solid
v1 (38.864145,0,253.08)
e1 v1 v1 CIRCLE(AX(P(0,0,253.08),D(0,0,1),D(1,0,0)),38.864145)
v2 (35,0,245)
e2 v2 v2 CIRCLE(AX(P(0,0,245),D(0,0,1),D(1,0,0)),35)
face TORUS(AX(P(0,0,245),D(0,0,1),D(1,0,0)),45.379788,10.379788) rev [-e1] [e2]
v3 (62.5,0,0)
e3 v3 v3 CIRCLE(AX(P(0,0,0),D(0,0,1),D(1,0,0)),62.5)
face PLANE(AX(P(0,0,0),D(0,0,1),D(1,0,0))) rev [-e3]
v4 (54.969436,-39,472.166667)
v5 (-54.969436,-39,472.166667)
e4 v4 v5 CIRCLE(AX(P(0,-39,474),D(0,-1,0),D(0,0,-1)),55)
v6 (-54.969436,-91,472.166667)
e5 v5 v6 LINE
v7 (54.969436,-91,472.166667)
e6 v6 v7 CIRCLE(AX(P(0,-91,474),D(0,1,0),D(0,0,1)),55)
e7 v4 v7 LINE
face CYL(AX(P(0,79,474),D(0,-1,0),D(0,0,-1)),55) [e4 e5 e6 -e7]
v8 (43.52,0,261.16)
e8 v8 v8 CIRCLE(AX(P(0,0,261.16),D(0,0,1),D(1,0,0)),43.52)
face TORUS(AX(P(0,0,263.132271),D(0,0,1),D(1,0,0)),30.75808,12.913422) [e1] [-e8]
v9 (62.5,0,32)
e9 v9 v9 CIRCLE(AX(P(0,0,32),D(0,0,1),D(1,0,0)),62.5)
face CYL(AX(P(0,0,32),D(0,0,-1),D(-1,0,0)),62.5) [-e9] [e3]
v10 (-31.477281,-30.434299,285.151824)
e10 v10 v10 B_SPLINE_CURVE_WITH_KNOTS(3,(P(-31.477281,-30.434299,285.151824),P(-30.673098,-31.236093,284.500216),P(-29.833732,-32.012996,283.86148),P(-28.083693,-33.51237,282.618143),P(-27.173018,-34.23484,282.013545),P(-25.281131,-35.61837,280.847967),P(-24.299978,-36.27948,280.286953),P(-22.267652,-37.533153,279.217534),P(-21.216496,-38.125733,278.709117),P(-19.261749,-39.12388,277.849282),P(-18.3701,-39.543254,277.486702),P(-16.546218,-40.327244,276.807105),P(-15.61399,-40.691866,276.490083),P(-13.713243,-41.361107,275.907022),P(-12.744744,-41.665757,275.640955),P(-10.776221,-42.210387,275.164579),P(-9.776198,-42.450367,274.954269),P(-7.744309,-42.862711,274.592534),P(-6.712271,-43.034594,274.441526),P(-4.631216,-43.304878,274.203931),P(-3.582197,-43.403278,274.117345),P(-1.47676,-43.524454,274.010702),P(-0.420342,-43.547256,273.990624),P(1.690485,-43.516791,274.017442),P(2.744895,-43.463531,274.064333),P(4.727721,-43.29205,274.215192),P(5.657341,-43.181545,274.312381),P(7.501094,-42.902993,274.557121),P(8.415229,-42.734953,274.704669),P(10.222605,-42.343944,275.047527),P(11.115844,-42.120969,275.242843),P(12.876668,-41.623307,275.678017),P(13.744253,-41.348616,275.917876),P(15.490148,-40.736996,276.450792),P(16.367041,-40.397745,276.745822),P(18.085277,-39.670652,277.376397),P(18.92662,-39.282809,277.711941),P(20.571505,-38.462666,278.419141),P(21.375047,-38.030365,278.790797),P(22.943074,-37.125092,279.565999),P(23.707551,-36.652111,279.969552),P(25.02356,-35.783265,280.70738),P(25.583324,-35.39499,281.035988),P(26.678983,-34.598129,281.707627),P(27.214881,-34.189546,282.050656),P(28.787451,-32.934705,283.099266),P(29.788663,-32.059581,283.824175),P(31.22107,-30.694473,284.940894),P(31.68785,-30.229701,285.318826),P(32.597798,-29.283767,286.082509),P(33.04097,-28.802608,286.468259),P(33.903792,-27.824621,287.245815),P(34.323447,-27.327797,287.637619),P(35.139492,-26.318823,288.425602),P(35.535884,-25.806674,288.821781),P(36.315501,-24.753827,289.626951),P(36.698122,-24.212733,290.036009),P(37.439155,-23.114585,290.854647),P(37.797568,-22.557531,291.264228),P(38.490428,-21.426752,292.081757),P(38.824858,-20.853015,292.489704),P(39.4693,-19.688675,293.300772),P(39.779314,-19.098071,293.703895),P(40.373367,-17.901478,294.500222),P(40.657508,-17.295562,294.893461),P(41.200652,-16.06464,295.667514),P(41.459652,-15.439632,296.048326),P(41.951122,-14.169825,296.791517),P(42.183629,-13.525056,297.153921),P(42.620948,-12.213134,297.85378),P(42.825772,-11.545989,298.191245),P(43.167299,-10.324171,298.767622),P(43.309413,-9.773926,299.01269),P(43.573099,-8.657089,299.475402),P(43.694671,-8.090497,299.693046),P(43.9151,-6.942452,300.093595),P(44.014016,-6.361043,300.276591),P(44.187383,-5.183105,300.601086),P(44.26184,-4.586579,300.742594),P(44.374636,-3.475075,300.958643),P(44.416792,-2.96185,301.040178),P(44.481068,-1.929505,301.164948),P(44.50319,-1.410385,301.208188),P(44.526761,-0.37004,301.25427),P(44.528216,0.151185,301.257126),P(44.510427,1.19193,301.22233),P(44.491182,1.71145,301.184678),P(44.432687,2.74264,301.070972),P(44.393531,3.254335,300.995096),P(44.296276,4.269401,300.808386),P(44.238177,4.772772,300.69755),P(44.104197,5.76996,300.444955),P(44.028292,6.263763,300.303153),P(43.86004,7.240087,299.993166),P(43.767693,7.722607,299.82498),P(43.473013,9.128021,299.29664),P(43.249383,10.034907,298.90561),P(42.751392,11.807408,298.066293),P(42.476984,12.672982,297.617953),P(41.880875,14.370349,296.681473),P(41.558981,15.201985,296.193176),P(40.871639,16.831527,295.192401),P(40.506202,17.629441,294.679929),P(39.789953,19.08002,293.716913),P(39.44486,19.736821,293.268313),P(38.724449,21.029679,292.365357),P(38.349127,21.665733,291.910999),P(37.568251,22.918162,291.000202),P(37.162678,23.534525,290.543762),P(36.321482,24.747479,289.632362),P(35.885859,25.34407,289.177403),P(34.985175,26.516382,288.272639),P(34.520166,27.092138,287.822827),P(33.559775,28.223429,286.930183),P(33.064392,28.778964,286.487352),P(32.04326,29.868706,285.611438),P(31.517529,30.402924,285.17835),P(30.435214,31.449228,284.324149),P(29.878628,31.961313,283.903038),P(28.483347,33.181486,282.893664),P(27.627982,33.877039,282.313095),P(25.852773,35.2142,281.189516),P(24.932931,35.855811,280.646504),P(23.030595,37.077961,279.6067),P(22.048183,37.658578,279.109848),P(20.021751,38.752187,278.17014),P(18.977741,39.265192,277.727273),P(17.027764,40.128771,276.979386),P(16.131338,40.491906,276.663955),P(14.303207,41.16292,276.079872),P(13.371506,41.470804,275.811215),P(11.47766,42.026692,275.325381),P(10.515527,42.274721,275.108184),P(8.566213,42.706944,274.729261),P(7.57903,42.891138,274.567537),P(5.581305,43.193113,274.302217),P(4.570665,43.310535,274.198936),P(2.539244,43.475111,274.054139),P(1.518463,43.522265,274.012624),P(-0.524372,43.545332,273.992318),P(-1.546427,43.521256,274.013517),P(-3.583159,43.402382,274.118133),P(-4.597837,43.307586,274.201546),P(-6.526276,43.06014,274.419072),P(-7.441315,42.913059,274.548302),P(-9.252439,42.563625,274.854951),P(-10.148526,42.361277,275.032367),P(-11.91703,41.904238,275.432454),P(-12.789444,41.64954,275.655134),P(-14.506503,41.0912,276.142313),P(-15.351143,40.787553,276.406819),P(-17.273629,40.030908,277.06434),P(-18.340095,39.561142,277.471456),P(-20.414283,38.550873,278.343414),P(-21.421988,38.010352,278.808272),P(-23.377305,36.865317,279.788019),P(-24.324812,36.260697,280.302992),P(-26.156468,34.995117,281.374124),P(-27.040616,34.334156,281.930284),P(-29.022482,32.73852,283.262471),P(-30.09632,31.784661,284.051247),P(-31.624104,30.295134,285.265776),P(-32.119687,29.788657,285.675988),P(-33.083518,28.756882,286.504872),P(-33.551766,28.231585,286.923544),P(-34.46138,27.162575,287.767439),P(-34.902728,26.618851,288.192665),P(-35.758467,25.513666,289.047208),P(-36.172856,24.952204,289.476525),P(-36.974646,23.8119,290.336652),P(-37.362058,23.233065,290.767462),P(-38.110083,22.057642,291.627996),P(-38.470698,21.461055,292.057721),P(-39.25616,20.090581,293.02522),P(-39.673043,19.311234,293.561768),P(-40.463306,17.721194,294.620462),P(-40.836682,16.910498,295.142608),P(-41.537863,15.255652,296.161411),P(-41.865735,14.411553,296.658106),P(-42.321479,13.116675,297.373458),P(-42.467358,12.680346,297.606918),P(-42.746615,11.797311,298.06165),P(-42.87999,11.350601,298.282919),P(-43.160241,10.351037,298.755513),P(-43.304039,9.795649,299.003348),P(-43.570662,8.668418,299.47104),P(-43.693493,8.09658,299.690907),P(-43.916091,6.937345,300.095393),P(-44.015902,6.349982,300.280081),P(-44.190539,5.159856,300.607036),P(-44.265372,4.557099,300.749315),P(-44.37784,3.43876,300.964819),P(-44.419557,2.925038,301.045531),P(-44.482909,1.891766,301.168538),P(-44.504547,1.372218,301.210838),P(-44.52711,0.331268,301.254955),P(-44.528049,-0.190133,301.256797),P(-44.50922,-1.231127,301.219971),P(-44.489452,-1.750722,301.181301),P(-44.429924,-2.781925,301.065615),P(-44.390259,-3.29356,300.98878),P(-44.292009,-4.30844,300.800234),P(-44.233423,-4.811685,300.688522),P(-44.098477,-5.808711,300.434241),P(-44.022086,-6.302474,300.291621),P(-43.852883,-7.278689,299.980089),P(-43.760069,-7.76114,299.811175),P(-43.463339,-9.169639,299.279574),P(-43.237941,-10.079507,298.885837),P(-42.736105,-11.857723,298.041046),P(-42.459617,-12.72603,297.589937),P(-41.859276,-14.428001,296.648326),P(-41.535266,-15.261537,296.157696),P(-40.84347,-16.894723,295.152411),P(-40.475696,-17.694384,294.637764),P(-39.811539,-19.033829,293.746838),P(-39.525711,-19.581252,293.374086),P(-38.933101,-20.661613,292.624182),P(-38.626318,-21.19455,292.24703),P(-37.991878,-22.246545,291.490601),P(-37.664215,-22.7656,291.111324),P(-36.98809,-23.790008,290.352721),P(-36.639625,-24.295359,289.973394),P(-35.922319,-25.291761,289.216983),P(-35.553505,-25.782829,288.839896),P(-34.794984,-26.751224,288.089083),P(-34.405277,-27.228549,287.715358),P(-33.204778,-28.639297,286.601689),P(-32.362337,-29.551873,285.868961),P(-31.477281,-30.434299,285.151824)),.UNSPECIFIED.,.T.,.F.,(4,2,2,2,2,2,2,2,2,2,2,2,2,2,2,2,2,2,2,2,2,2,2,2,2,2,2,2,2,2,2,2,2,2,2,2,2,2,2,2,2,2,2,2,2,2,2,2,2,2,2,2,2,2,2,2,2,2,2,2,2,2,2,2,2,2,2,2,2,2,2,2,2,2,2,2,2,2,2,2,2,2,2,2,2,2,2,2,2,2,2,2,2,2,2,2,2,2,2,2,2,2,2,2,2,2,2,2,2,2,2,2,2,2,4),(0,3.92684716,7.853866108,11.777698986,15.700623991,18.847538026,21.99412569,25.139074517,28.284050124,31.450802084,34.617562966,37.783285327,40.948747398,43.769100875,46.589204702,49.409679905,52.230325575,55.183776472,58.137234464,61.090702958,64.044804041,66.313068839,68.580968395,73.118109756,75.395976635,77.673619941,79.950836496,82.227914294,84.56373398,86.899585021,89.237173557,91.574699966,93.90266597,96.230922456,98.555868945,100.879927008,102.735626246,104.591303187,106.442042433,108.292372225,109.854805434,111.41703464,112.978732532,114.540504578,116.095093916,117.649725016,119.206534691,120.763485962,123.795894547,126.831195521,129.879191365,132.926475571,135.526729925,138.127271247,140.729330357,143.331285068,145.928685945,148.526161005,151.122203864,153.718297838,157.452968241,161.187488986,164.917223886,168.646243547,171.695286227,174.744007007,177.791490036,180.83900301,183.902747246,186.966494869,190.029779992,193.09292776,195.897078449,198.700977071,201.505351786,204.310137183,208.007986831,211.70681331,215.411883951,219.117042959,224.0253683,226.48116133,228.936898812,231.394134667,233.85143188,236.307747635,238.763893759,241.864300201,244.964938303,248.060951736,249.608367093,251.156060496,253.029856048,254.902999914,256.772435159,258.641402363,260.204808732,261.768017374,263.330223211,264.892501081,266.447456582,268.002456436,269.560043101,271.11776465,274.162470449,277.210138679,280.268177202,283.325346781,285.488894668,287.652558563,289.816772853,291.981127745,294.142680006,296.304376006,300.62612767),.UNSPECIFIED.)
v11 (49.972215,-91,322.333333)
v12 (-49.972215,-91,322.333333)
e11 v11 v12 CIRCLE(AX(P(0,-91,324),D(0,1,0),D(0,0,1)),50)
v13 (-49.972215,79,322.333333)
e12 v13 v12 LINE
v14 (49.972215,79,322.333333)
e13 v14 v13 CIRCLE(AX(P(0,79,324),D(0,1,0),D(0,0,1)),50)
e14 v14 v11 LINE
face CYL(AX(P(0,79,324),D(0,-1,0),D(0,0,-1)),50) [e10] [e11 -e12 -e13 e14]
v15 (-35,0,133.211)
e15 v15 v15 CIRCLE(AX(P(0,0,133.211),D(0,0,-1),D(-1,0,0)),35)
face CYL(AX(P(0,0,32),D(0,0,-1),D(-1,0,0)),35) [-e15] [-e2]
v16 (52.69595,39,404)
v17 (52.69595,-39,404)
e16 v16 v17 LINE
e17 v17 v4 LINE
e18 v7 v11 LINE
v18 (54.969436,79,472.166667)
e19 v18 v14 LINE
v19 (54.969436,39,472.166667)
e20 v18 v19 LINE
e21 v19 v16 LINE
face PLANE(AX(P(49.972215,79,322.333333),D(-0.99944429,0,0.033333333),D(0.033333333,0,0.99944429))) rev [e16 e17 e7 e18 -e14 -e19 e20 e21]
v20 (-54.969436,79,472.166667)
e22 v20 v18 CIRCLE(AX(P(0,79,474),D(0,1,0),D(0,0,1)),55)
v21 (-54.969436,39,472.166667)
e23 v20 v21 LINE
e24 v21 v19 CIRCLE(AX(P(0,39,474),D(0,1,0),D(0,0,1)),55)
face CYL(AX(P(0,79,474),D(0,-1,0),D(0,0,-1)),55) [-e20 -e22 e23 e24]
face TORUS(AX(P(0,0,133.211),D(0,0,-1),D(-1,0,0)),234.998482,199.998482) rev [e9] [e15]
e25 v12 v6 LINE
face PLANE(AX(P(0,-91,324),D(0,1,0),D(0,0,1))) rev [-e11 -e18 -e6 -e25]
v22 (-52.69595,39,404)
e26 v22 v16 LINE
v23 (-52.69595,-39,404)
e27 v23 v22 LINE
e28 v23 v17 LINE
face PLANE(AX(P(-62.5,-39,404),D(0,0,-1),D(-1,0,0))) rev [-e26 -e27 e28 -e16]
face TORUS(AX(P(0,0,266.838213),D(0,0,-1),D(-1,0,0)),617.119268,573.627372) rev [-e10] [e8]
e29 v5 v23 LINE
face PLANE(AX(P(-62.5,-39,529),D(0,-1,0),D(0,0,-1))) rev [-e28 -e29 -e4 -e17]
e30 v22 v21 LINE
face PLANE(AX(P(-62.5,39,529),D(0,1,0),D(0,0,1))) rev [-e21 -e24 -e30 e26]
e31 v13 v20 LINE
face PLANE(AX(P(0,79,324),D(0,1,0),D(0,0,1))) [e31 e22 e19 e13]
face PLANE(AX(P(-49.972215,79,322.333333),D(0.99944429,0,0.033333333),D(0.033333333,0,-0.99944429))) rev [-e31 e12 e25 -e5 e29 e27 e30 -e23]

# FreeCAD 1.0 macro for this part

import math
import FreeCAD as App
import Part
import Sketcher

V = App.Vector

doc = App.newDocument("Part")
params = doc.addObject("Spreadsheet::Sheet", "Params")
for row, (alias, value) in enumerate([
    ("sketch1_diameter", "125 mm"),
    ("pad1_length", "32 mm"),
    ("sketch2_width", "35 mm"),
    ("sketch2_height", "213 mm"),
    ("sketch2_width2", "62.5 mm"),
    ("revolution_angle", "360 deg"),
    ("sketch3_width", "35 mm"),
    ("sketch3_width2", "43.52 mm"),
    ("sketch3_height", "16.16 mm"),
    ("revolution2_angle", "360 deg"),
    ("sketch4_width", "43.52 mm"),
    ("sketch4_height", "61.18 mm"),
    ("revolution3_angle", "360 deg"),
    ("sketch5_radius", "55 mm"),
    ("sketch5_radius2", "50 mm"),
    ("pad2_length", "79 mm"),
    ("pad2_length2", "91 mm"),
    ("sketch6_width", "78 mm"),
    ("sketch6_height", "125 mm"),
], start=1):
    params.set(f"A{row}", alias)
    params.set(f"B{row}", "=" + value)
    params.setAlias(f"B{row}", alias)

body = doc.addObject("PartDesign::Body", "Body")

# Sketch on XY plane
sketch1 = doc.addObject("Sketcher::SketchObject", "Sketch")
body.addObject(sketch1)
sketch1.AttachmentSupport = (doc.XY_Plane, [""])
sketch1.MapMode = "FlatFace"
sketch1.addGeometry(Part.Circle(V(0, 0, 0), V(0, 0, 1), 62), False)
sketch1.addConstraint(Sketcher.Constraint("Coincident", 0, 3, -1, 1))
sketch1.addConstraint(Sketcher.Constraint("Diameter", 0, 125.0))
sketch1.setExpression("Constraints[1]", "Params.sketch1_diameter")
pad1 = doc.addObject("PartDesign::Pad", "Pad")
body.addObject(pad1)
pad1.Profile = sketch1
pad1.setExpression("Length", "Params.pad1_length")

# Sketch on XZ plane
sketch2 = doc.addObject("Sketcher::SketchObject", "Sketch001")
body.addObject(sketch2)
sketch2.AttachmentSupport = (doc.XZ_Plane, [""])
sketch2.MapMode = "FlatFace"
sketch2.addGeometry(Part.LineSegment(V(0, 32, 0), V(0, 245, 0)), False)
sketch2.addGeometry(Part.LineSegment(V(0, 245, 0), V(35, 245, 0)), False)
sketch2.addGeometry(Part.LineSegment(V(35, 245, 0), V(35, 133, 0)), False)
sketch2.addGeometry(Part.ArcOfCircle(Part.Circle(V(235, 133, 0), V(0, 0, 1), 200), math.radians(180), math.radians(210)), False)
sketch2.addGeometry(Part.LineSegment(V(62, 32, 0), V(0, 32, 0)), False)
sketch2.addConstraint(Sketcher.Constraint("Coincident", 0, 2, 1, 1))
sketch2.addConstraint(Sketcher.Constraint("Coincident", 1, 2, 2, 1))
sketch2.addConstraint(Sketcher.Constraint("Tangent", 2, 2, 3, 1))
sketch2.addConstraint(Sketcher.Constraint("Coincident", 3, 2, 4, 1))
sketch2.addConstraint(Sketcher.Constraint("Coincident", 4, 2, 0, 1))
sketch2.addConstraint(Sketcher.Constraint("Vertical", 0))
sketch2.addConstraint(Sketcher.Constraint("Horizontal", 1))
sketch2.addConstraint(Sketcher.Constraint("Vertical", 2))
sketch2.addConstraint(Sketcher.Constraint("Horizontal", 4))
sketch2.addConstraint(Sketcher.Constraint("PointOnObject", 0, 2, -2))
sketch2.addConstraint(Sketcher.Constraint("DistanceX", 1, 1, 1, 2, 35.0))
sketch2.addConstraint(Sketcher.Constraint("DistanceY", 0, 1, 0, 2, 213.0))
sketch2.addConstraint(Sketcher.Constraint("DistanceX", 4, 2, 4, 1, 62.5))
sketch2.addConstraint(Sketcher.Constraint("DistanceY", -1, 1, 0, 2, 245.0))
sketch2.addConstraint(Sketcher.Constraint("DistanceY", 2, 2, 2, 1, 111.789))
sketch2.setExpression("Constraints[10]", "Params.sketch2_width")
sketch2.setExpression("Constraints[11]", "Params.sketch2_height")
sketch2.setExpression("Constraints[12]", "Params.sketch2_width2")
revolution = doc.addObject("PartDesign::Revolution", "Revolution")
body.addObject(revolution)
revolution.Profile = sketch2
revolution.ReferenceAxis = (sketch2, ["V_Axis"])
revolution.setExpression("Angle", "Params.revolution_angle")

# Sketch on XZ plane
sketch3 = doc.addObject("Sketcher::SketchObject", "Sketch002")
body.addObject(sketch3)
sketch3.AttachmentSupport = (doc.XZ_Plane, [""])
sketch3.MapMode = "FlatFace"
sketch3.addGeometry(Part.LineSegment(V(35, 245, 0), V(0, 245, 0)), False)
sketch3.addGeometry(Part.LineSegment(V(0, 245, 0), V(0, 261, 0)), False)
sketch3.addGeometry(Part.LineSegment(V(0, 261, 0), V(44, 261, 0)), False)
sketch3.addGeometry(Part.ArcOfCircle(Part.Circle(V(31, 263, 0), V(0, 0, 1), 13), math.radians(-51), math.radians(-9)), False)
sketch3.addGeometry(Part.ArcOfCircle(Part.Circle(V(45, 245, 0), V(0, 0, 1), 10), math.radians(129), math.radians(180)), False)
sketch3.addConstraint(Sketcher.Constraint("Coincident", 0, 2, 1, 1))
sketch3.addConstraint(Sketcher.Constraint("Coincident", 1, 2, 2, 1))
sketch3.addConstraint(Sketcher.Constraint("Coincident", 2, 2, 3, 2))
sketch3.addConstraint(Sketcher.Constraint("Tangent", 3, 1, 4, 1))
sketch3.addConstraint(Sketcher.Constraint("Coincident", 4, 2, 0, 1))
sketch3.addConstraint(Sketcher.Constraint("Horizontal", 0))
sketch3.addConstraint(Sketcher.Constraint("Vertical", 1))
sketch3.addConstraint(Sketcher.Constraint("Horizontal", 2))
sketch3.addConstraint(Sketcher.Constraint("PointOnObject", 0, 2, -2))
sketch3.addConstraint(Sketcher.Constraint("Horizontal", 4, 3, 0, 2))
sketch3.addConstraint(Sketcher.Constraint("DistanceX", 0, 2, 0, 1, 35.0))
sketch3.addConstraint(Sketcher.Constraint("DistanceY", -1, 1, 4, 3, 245.0))
sketch3.addConstraint(Sketcher.Constraint("DistanceX", 2, 1, 2, 2, 43.52))
sketch3.addConstraint(Sketcher.Constraint("DistanceY", 1, 1, 1, 2, 16.16))
sketch3.addConstraint(Sketcher.Constraint("DistanceY", -1, 1, 3, 1, 253.08))
sketch3.addConstraint(Sketcher.Constraint("Radius", 3, 12.913422))
sketch3.setExpression("Constraints[10]", "Params.sketch3_width")
sketch3.setExpression("Constraints[12]", "Params.sketch3_width2")
sketch3.setExpression("Constraints[13]", "Params.sketch3_height")
revolution2 = doc.addObject("PartDesign::Revolution", "Revolution001")
body.addObject(revolution2)
revolution2.Profile = sketch3
revolution2.ReferenceAxis = (sketch3, ["V_Axis"])
revolution2.setExpression("Angle", "Params.revolution2_angle")

# Sketch on XZ plane
sketch4 = doc.addObject("Sketcher::SketchObject", "Sketch003")
body.addObject(sketch4)
sketch4.AttachmentSupport = (doc.XZ_Plane, [""])
sketch4.MapMode = "FlatFace"
sketch4.addGeometry(Part.LineSegment(V(0, 261, 0), V(0, 322, 0)), False)
sketch4.addGeometry(Part.LineSegment(V(0, 322, 0), V(46, 322, 0)), False)
sketch4.addGeometry(Part.ArcOfCircle(Part.Circle(V(617, 267, 0), V(0, 0, 1), 574), math.radians(174.45), math.radians(180.57)), False)
sketch4.addGeometry(Part.LineSegment(V(44, 261, 0), V(0, 261, 0)), False)
sketch4.addConstraint(Sketcher.Constraint("Coincident", 0, 2, 1, 1))
sketch4.addConstraint(Sketcher.Constraint("Coincident", 1, 2, 2, 1))
sketch4.addConstraint(Sketcher.Constraint("Coincident", 2, 2, 3, 1))
sketch4.addConstraint(Sketcher.Constraint("Coincident", 3, 2, 0, 1))
sketch4.addConstraint(Sketcher.Constraint("Vertical", 0))
sketch4.addConstraint(Sketcher.Constraint("Horizontal", 1))
sketch4.addConstraint(Sketcher.Constraint("Horizontal", 3))
sketch4.addConstraint(Sketcher.Constraint("PointOnObject", 0, 2, -2))
sketch4.addConstraint(Sketcher.Constraint("DistanceX", 3, 2, 3, 1, 43.52))
sketch4.addConstraint(Sketcher.Constraint("DistanceY", 0, 1, 0, 2, 61.18))
sketch4.addConstraint(Sketcher.Constraint("DistanceY", -1, 1, 0, 2, 322.34))
sketch4.addConstraint(Sketcher.Constraint("Radius", 2, 573.627372))
sketch4.addConstraint(Sketcher.Constraint("DistanceX", 1, 1, 1, 2, 46.18327))
sketch4.setExpression("Constraints[8]", "Params.sketch4_width")
sketch4.setExpression("Constraints[9]", "Params.sketch4_height")
revolution3 = doc.addObject("PartDesign::Revolution", "Revolution002")
body.addObject(revolution3)
revolution3.Profile = sketch4
revolution3.ReferenceAxis = (sketch4, ["V_Axis"])
revolution3.setExpression("Angle", "Params.revolution3_angle")

# Sketch on XZ plane
sketch5 = doc.addObject("Sketcher::SketchObject", "Sketch004")
body.addObject(sketch5)
sketch5.AttachmentSupport = (doc.XZ_Plane, [""])
sketch5.MapMode = "FlatFace"
sketch5.addGeometry(Part.LineSegment(V(-50, 322, 0), V(-55, 472, 0)), False)
sketch5.addGeometry(Part.ArcOfCircle(Part.Circle(V(0, 474, 0), V(0, 0, 1), 55), math.radians(-2), math.radians(182)), False)
sketch5.addGeometry(Part.LineSegment(V(55, 472, 0), V(50, 322, 0)), False)
sketch5.addGeometry(Part.ArcOfCircle(Part.Circle(V(0, 324, 0), V(0, 0, 1), 50), math.radians(-178), math.radians(-2)), False)
sketch5.addConstraint(Sketcher.Constraint("Tangent", 0, 2, 1, 2))
sketch5.addConstraint(Sketcher.Constraint("Tangent", 1, 1, 2, 1))
sketch5.addConstraint(Sketcher.Constraint("Tangent", 2, 2, 3, 2))
sketch5.addConstraint(Sketcher.Constraint("Tangent", 3, 1, 0, 1))
sketch5.addConstraint(Sketcher.Constraint("Symmetric", 0, 2, 1, 1, -2))
sketch5.addConstraint(Sketcher.Constraint("Radius", 1, 55.0))
sketch5.addConstraint(Sketcher.Constraint("Radius", 3, 50.0))
sketch5.addConstraint(Sketcher.Constraint("DistanceY", -1, 1, 1, 3, 474.0))
sketch5.addConstraint(Sketcher.Constraint("DistanceY", -1, 1, 3, 3, 324.0))
sketch5.setExpression("Constraints[5]", "Params.sketch5_radius")
sketch5.setExpression("Constraints[6]", "Params.sketch5_radius2")
pad2 = doc.addObject("PartDesign::Pad", "Pad001")
body.addObject(pad2)
pad2.Profile = sketch5
pad2.Type = "TwoLengths"
pad2.setExpression("Length", "Params.pad2_length")
pad2.setExpression("Length2", "Params.pad2_length2")
pad2.Reversed = True

# Sketch on YZ plane
sketch6 = doc.addObject("Sketcher::SketchObject", "Sketch005")
body.addObject(sketch6)
sketch6.AttachmentSupport = (doc.YZ_Plane, [""])
sketch6.MapMode = "FlatFace"
sketch6.addGeometry(Part.LineSegment(V(39, 404, 0), V(39, 529, 0)), False)
sketch6.addGeometry(Part.LineSegment(V(39, 529, 0), V(-39, 529, 0)), False)
sketch6.addGeometry(Part.LineSegment(V(-39, 529, 0), V(-39, 404, 0)), False)
sketch6.addGeometry(Part.LineSegment(V(-39, 404, 0), V(39, 404, 0)), False)
sketch6.addConstraint(Sketcher.Constraint("Coincident", 0, 2, 1, 1))
sketch6.addConstraint(Sketcher.Constraint("Coincident", 1, 2, 2, 1))
sketch6.addConstraint(Sketcher.Constraint("Coincident", 2, 2, 3, 1))
sketch6.addConstraint(Sketcher.Constraint("Coincident", 3, 2, 0, 1))
sketch6.addConstraint(Sketcher.Constraint("Vertical", 0))
sketch6.addConstraint(Sketcher.Constraint("Horizontal", 1))
sketch6.addConstraint(Sketcher.Constraint("Vertical", 2))
sketch6.addConstraint(Sketcher.Constraint("Horizontal", 3))
sketch6.addConstraint(Sketcher.Constraint("DistanceX", 1, 2, 1, 1, 78.0))
sketch6.addConstraint(Sketcher.Constraint("DistanceY", 0, 1, 0, 2, 125.0))
sketch6.addConstraint(Sketcher.Constraint("DistanceX", -1, 1, 0, 2, 39.0))
sketch6.addConstraint(Sketcher.Constraint("DistanceY", -1, 1, 0, 2, 529.0))
sketch6.setExpression("Constraints[8]", "Params.sketch6_width")
sketch6.setExpression("Constraints[9]", "Params.sketch6_height")
pocket1 = doc.addObject("PartDesign::Pocket", "Pocket")
body.addObject(pocket1)
pocket1.Profile = sketch6
pocket1.Type = "ThroughAll"
pocket1.Midplane = True

doc.recompute()
